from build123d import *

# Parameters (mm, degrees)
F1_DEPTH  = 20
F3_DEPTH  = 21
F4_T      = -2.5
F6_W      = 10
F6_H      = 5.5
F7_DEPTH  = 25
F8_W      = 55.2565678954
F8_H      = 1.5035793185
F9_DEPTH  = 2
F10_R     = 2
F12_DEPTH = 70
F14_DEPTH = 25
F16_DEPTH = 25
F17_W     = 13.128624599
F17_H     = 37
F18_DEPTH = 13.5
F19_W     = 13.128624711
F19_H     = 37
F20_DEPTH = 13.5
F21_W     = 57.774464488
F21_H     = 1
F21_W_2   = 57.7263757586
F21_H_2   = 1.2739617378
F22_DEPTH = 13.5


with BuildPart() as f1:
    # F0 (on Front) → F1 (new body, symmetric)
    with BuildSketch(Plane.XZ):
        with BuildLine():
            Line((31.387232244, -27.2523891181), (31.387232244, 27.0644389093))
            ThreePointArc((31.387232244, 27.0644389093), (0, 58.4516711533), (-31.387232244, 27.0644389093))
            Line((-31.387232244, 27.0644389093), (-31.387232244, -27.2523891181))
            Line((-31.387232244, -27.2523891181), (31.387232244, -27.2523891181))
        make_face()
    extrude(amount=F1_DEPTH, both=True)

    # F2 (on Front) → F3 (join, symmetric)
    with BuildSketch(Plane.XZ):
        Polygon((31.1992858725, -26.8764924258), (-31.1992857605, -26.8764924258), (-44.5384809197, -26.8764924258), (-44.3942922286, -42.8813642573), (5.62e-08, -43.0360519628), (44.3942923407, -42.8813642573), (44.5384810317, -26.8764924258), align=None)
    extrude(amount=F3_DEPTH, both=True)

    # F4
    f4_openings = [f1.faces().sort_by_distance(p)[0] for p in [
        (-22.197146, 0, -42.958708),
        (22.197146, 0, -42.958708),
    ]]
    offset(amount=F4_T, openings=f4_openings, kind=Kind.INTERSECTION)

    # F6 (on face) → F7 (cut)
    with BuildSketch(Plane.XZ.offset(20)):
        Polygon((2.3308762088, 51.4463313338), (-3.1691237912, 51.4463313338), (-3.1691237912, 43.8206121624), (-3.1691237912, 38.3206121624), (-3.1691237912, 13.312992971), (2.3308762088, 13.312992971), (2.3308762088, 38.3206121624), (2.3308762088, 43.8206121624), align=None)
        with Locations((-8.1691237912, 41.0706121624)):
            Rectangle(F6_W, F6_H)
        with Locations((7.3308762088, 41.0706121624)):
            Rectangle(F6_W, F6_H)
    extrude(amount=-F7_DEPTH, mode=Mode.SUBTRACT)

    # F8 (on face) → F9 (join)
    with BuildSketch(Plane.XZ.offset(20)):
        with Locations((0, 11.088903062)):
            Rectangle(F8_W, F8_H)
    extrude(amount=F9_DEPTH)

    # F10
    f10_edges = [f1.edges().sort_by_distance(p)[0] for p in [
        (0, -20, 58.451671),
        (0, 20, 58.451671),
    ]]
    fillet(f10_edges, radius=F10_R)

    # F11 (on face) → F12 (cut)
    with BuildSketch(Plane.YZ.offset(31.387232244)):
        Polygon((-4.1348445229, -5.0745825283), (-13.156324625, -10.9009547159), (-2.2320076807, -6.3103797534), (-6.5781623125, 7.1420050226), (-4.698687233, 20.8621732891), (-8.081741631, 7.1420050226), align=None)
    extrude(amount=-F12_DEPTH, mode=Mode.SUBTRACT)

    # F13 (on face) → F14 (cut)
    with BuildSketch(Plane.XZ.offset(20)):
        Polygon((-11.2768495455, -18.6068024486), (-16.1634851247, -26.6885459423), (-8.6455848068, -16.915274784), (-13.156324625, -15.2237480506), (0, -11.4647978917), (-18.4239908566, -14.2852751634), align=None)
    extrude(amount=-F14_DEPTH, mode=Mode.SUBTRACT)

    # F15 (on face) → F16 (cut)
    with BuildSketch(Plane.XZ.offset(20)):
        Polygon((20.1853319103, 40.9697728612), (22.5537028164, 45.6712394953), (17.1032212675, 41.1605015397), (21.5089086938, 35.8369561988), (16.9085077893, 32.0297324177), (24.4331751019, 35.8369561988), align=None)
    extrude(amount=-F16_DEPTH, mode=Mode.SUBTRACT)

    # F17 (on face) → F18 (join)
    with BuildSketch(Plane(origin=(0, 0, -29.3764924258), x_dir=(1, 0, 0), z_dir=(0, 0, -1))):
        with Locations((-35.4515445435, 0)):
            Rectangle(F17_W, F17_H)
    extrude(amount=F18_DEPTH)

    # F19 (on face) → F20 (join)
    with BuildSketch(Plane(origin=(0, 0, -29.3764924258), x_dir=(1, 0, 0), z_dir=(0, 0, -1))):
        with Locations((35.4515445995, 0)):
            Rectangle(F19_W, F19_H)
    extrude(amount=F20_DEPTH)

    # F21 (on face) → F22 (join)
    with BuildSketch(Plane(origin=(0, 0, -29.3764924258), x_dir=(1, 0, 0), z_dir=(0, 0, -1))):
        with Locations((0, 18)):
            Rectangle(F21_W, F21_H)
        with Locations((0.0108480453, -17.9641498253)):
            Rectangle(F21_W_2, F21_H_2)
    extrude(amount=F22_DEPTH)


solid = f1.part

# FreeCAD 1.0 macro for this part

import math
import FreeCAD as App
import Part
import Sketcher
from FreeCAD import Vector
Q = App.Units.Quantity


def edges_at(feature, points):
    """Names of the edges that pass closest to the given points."""
    edges = feature.Shape.Edges
    near = lambda p: min(range(len(edges)), key=lambda i: edges[i].distToShape(Part.Vertex(*p))[0])
    return sorted({f"Edge{near(p) + 1}" for p in points})


def faces_at(feature, points):
    """Names of the faces that lie closest to the given points."""
    faces = feature.Shape.Faces
    near = lambda p: min(range(len(faces)), key=lambda i: faces[i].distToShape(Part.Vertex(*p))[0])
    return sorted({f"Face{near(p) + 1}" for p in points})


def add_polygon(sketch, points):
    """Adds a closed chain of lines whose ends are joined by coincident constraints."""
    first, n = sketch.GeometryCount, len(points)
    for a, b in zip(points, points[1:] + points[:1]):
        sketch.addGeometry(Part.LineSegment(App.Vector(*a, 0), App.Vector(*b, 0)), False)
    for i in range(n):
        sketch.addConstraint(Sketcher.Constraint("Coincident", first + i, 2, first + (i + 1) % n, 1))

doc = App.newDocument("Part")
body = doc.addObject("PartDesign::Body", "Body")

# Sketch on XZ plane
sketch1 = body.newObject("Sketcher::SketchObject", "Sketch")
sketch1.AttachmentSupport = (doc.getObject("XZ_Plane"), [""])
sketch1.MapMode = "FlatFace"
sketch1.addGeometry([
    Part.LineSegment(Vector(31, -27, 0), Vector(31, 27, 0)),
    Part.ArcOfCircle(Part.Circle(Vector(0, 27, 0), Vector(0, 0, 1), 31), math.radians(0), math.radians(180)),
    Part.LineSegment(Vector(-31, 27, 0), Vector(-31, -27, 0)),
    Part.LineSegment(Vector(-31, -27, 0), Vector(31, -27, 0)),
], False)
sketch1.addConstraint([
    Sketcher.Constraint("Tangent", 0, 2, 1, 1),
    Sketcher.Constraint("Tangent", 1, 2, 2, 1),
    Sketcher.Constraint("Coincident", 2, 2, 3, 1),
    Sketcher.Constraint("Coincident", 3, 2, 0, 1),
    Sketcher.Constraint("Vertical", 0),
    Sketcher.Constraint("Vertical", 2),
    Sketcher.Constraint("Horizontal", 3),
    Sketcher.Constraint("PointOnObject", 1, 3, -2),
    Sketcher.Constraint("Radius", 1, Q("31.387232 mm")),
    Sketcher.Constraint("DistanceY", 0, 1, 0, 2, Q("54.316828 mm")),
    Sketcher.Constraint("DistanceY", -1, 1, 1, 3, Q("27.064439 mm")),
])
pad1 = body.newObject("PartDesign::Pad", "Pad")
pad1.Profile = sketch1
pad1.Length = 40
pad1.Midplane = True

# Sketch on XZ plane
sketch2 = body.newObject("Sketcher::SketchObject", "Sketch001")
sketch2.AttachmentSupport = (doc.getObject("XZ_Plane"), [""])
sketch2.MapMode = "FlatFace"
add_polygon(sketch2, [(-45, -27), (-44, -43), (0, -43), (44, -43), (45, -27)])  # lines 0-4
sketch2.addConstraint([
    Sketcher.Constraint("Horizontal", 4),
    Sketcher.Constraint("Symmetric", 0, 2, 2, 2, -2),
    Sketcher.Constraint("PointOnObject", 1, 2, -2),
    Sketcher.Constraint("Equal", 0, 3),
    Sketcher.Constraint("DistanceX", 4, 2, 4, 1, Q("89.076962 mm")),
    Sketcher.Constraint("Distance", 0, Q("16.005521 mm")),
    Sketcher.Constraint("Distance", 1, Q("44.394562 mm")),
    Sketcher.Constraint("DistanceY", 1, 2, -1, 1, Q("43.036052 mm")),
    Sketcher.Constraint("DistanceY", 1, 2, 3, 2, Q("16.15956 mm")),
])
pad2 = body.newObject("PartDesign::Pad", "Pad001")
pad2.Profile = sketch2
pad2.Length = 42
pad2.Midplane = True
doc.recompute()

thickness = body.newObject("PartDesign::Thickness", "Thickness")
thickness.Base = (pad2, faces_at(pad2, [(-22.197, 0, -42.959), (22.197, 0, -42.959)]))
thickness.Value = 2.5
thickness.Reversed = True
thickness.Join = "Intersection"

# Sketch on XZ plane
sketch3 = body.newObject("Sketcher::SketchObject", "Sketch002")
sketch3.AttachmentSupport = (doc.getObject("XZ_Plane"), [""])
sketch3.MapMode = "FlatFace"
sketch3.AttachmentOffset = App.Placement(Vector(0, 0, 20), App.Rotation())
add_polygon(sketch3, [(2, 51), (-3, 51), (-3, 44), (-13, 44), (-13, 38), (-3, 38), (-3, 13), (2, 13), (2, 38), (12, 38), (12, 44), (2, 44)])  # lines 0-11
sketch3.addConstraint([
    Sketcher.Constraint("Horizontal", 0),
    Sketcher.Constraint("Vertical", 1),
    Sketcher.Constraint("Horizontal", 2),
    Sketcher.Constraint("Vertical", 3),
    Sketcher.Constraint("Horizontal", 4),
    Sketcher.Constraint("Vertical", 5),
    Sketcher.Constraint("Horizontal", 6),
    Sketcher.Constraint("Vertical", 7),
    Sketcher.Constraint("Horizontal", 8),
    Sketcher.Constraint("Vertical", 9),
    Sketcher.Constraint("Horizontal", 10),
    Sketcher.Constraint("Vertical", 11),
    Sketcher.Constraint("Horizontal", 4, 2, 7, 2),
    Sketcher.Constraint("Horizontal", 2, 2, 9, 2),
    Sketcher.Constraint("Vertical", 1, 2, 4, 2),
    Sketcher.Constraint("Vertical", 7, 2, 10, 2),
    Sketcher.Constraint("Equal", 4, 8),
    Sketcher.Constraint("Equal", 6, 3),
    Sketcher.Constraint("DistanceX", 2, 2, 2, 1, Q("10 mm")),
    Sketcher.Constraint("DistanceX", 0, 2, 0, 1, Q("5.5 mm")),
    Sketcher.Constraint("DistanceY", 1, 2, 1, 1, Q("7.625719 mm")),
    Sketcher.Constraint("DistanceY", 5, 2, 5, 1, Q("25.007619 mm")),
    Sketcher.Constraint("DistanceY", -1, 1, 0, 2, Q("51.446331 mm")),
    Sketcher.Constraint("DistanceX", 0, 2, -1, 1, Q("3.169124 mm")),
])
pocket1 = body.newObject("PartDesign::Pocket", "Pocket")
pocket1.Profile = sketch3
pocket1.Length = 25

# Sketch on XZ plane
sketch4 = body.newObject("Sketcher::SketchObject", "Sketch003")
sketch4.AttachmentSupport = (doc.getObject("XZ_Plane"), [""])
sketch4.MapMode = "FlatFace"
sketch4.AttachmentOffset = App.Placement(Vector(0, 0, 20), App.Rotation())
add_polygon(sketch4, [(-27.6, 11.8), (-27.6, 10.3), (27.6, 10.3), (27.6, 11.8)])  # lines 0-3
sketch4.addConstraint([
    Sketcher.Constraint("Vertical", 0),
    Sketcher.Constraint("Horizontal", 1),
    Sketcher.Constraint("Vertical", 2),
    Sketcher.Constraint("Horizontal", 3),
    Sketcher.Constraint("DistanceY", 0, 2, 0, 1, Q("1.503579 mm")),
    Sketcher.Constraint("DistanceX", 1, 1, 1, 2, Q("55.256568 mm")),
    Sketcher.Constraint("DistanceX", 0, 2, -1, 1, Q("27.628284 mm")),
    Sketcher.Constraint("DistanceY", -1, 1, 0, 2, Q("10.337113 mm")),
])
pad3 = body.newObject("PartDesign::Pad", "Pad002")
pad3.Profile = sketch4
pad3.Length = 2
doc.recompute()

fillet = body.newObject("PartDesign::Fillet", "Fillet")
fillet.Base = (pad3, edges_at(pad3, [(0, -20, 58.452), (0, 20, 58.452)]))
fillet.Radius = 2

# Sketch on YZ plane
sketch5 = body.newObject("Sketcher::SketchObject", "Sketch004")
sketch5.AttachmentSupport = (doc.getObject("YZ_Plane"), [""])
sketch5.MapMode = "FlatFace"
sketch5.AttachmentOffset = App.Placement(Vector(0, 0, 31.387232), App.Rotation())
add_polygon(sketch5, [(-4, -5), (-13, -11), (-2, -6), (-7, 7), (-5, 21), (-8, 7)])  # lines 0-5
sketch5.addConstraint([
    Sketcher.Constraint("Parallel", 2, 5),
    Sketcher.Constraint("Horizontal", 2, 2, 4, 2),
    Sketcher.Constraint("Distance", 3, Q("13.848301 mm")),
    Sketcher.Constraint("Distance", 5, Q("12.838341 mm")),
    Sketcher.Constraint("DistanceY", 1, 2, -1, 1, Q("6.31038 mm")),
    Sketcher.Constraint("DistanceX", 4, 2, -1, 1, Q("8.081742 mm")),
    Sketcher.Constraint("DistanceY", 0, 2, 2, 2, Q("18.04296 mm")),
    Sketcher.Constraint("DistanceY", 2, 2, 3, 2, Q("13.720168 mm")),
    Sketcher.Constraint("DistanceX", 3, 2, 1, 2, Q("2.46668 mm")),
    Sketcher.Constraint("DistanceX", 4, 2, 2, 2, Q("1.503579 mm")),
    Sketcher.Constraint("DistanceX", 0, 2, 5, 2, Q("9.02148 mm")),
    Sketcher.Constraint("Distance", 0, Q("10.739354 mm")),
])
pocket2 = body.newObject("PartDesign::Pocket", "Pocket001")
pocket2.Profile = sketch5
pocket2.Length = 70

# Sketch on XZ plane
sketch6 = body.newObject("Sketcher::SketchObject", "Sketch005")
sketch6.AttachmentSupport = (doc.getObject("XZ_Plane"), [""])
sketch6.MapMode = "FlatFace"
sketch6.AttachmentOffset = App.Placement(Vector(0, 0, 20), App.Rotation())
add_polygon(sketch6, [(-11.3, -18.6), (-16.2, -26.7), (-8.6, -16.9), (-13.2, -15.2), (0, -11.5), (-18.4, -14.3)])  # lines 0-5
sketch6.addConstraint([
    Sketcher.Constraint("PointOnObject", 3, 2, -2),
    Sketcher.Constraint("Perpendicular", 0, 5),
    Sketcher.Constraint("DistanceY", 1, 2, 4, 2, Q("2.63 mm")),
    Sketcher.Constraint("DistanceX", 0, 2, 1, 2, Q("7.5179 mm")),
    Sketcher.Constraint("Distance", 2, Q("4.817472 mm")),
    Sketcher.Constraint("Distance", 4, Q("18.63863 mm")),
    Sketcher.Constraint("Distance", 5, Q("8.352079 mm")),
    Sketcher.Constraint("DistanceY", 2, 2, -1, 1, Q("15.223748 mm")),
    Sketcher.Constraint("DistanceX", 4, 2, -1, 1, Q("18.423991 mm")),
    Sketcher.Constraint("DistanceX", 5, 2, -1, 1, Q("11.27685 mm")),
    Sketcher.Constraint("DistanceY", 0, 2, 1, 2, Q("9.773271 mm")),
    Sketcher.Constraint("DistanceX", 2, 2, 1, 2, Q("4.51074 mm")),
])
pocket3 = body.newObject("PartDesign::Pocket", "Pocket002")
pocket3.Profile = sketch6
pocket3.Length = 25

# Sketch on XZ plane
sketch7 = body.newObject("Sketcher::SketchObject", "Sketch006")
sketch7.AttachmentSupport = (doc.getObject("XZ_Plane"), [""])
sketch7.MapMode = "FlatFace"
sketch7.AttachmentOffset = App.Placement(Vector(0, 0, 20), App.Rotation())
add_polygon(sketch7, [(20, 41), (23, 46), (17, 41), (22, 36), (17, 32), (24, 36)])  # lines 0-5
sketch7.addConstraint([
    Sketcher.Constraint("Perpendicular", 1, 2),
    Sketcher.Constraint("Perpendicular", 2, 3),
    Sketcher.Constraint("Perpendicular", 3, 5),
    Sketcher.Constraint("Horizontal", 2, 2, 4, 2),
    Sketcher.Constraint("DistanceY", -1, 1, 1, 2, Q("41.160502 mm")),
    Sketcher.Constraint("DistanceX", 3, 2, 2, 2, Q("4.600401 mm")),
    Sketcher.Constraint("Distance", 0, Q("5.264311 mm")),
    Sketcher.Constraint("Distance", 1, Q("7.074921 mm")),
    Sketcher.Constraint("Distance", 5, Q("6.66258 mm")),
    Sketcher.Constraint("DistanceY", -1, 1, 0, 2, Q("45.671239 mm")),
    Sketcher.Constraint("DistanceX", -1, 1, 1, 2, Q("17.103221 mm")),
    Sketcher.Constraint("DistanceX", -1, 1, 2, 2, Q("21.508909 mm")),
])
pocket4 = body.newObject("PartDesign::Pocket", "Pocket003")
pocket4.Profile = sketch7
pocket4.Length = 25

# Sketch on XY plane
sketch8 = body.newObject("Sketcher::SketchObject", "Sketch007")
sketch8.AttachmentSupport = (doc.getObject("XY_Plane"), [""])
sketch8.MapMode = "FlatFace"
sketch8.AttachmentOffset = App.Placement(Vector(0, 0, -29.376492), App.Rotation())
add_polygon(sketch8, [(-42, -18), (-42, 18), (-29, 18), (-29, -18)])  # lines 0-3
sketch8.addConstraint([
    Sketcher.Constraint("Vertical", 0),
    Sketcher.Constraint("Horizontal", 1),
    Sketcher.Constraint("Vertical", 2),
    Sketcher.Constraint("Horizontal", 3),
    Sketcher.Constraint("DistanceY", 0, 1, 0, 2, Q("37 mm")),
    Sketcher.Constraint("DistanceY", -1, 1, 0, 2, Q("18.5 mm")),
    Sketcher.Constraint("DistanceX", 1, 1, 1, 2, Q("13.128625 mm")),
    Sketcher.Constraint("DistanceX", 0, 2, -1, 1, Q("42.015857 mm")),
])
pad4 = body.newObject("PartDesign::Pad", "Pad003")
pad4.Profile = sketch8
pad4.Length = 13.5
pad4.Reversed = True

# Sketch on XY plane
sketch9 = body.newObject("Sketcher::SketchObject", "Sketch008")
sketch9.AttachmentSupport = (doc.getObject("XY_Plane"), [""])
sketch9.MapMode = "FlatFace"
sketch9.AttachmentOffset = App.Placement(Vector(0, 0, -29.376492), App.Rotation())
add_polygon(sketch9, [(29, -18), (29, 18), (42, 18), (42, -18)])  # lines 0-3
sketch9.addConstraint([
    Sketcher.Constraint("Vertical", 0),
    Sketcher.Constraint("Horizontal", 1),
    Sketcher.Constraint("Vertical", 2),
    Sketcher.Constraint("Horizontal", 3),
    Sketcher.Constraint("DistanceY", 0, 1, 0, 2, Q("37 mm")),
    Sketcher.Constraint("DistanceY", -1, 1, 0, 2, Q("18.5 mm")),
    Sketcher.Constraint("DistanceX", 1, 1, 1, 2, Q("13.128625 mm")),
    Sketcher.Constraint("DistanceX", -1, 1, 0, 2, Q("28.887232 mm")),
])
pad5 = body.newObject("PartDesign::Pad", "Pad004")
pad5.Profile = sketch9
pad5.Length = 13.5
pad5.Reversed = True

# Sketch on XY plane
sketch10 = body.newObject("Sketcher::SketchObject", "Sketch009")
sketch10.AttachmentSupport = (doc.getObject("XY_Plane"), [""])
sketch10.MapMode = "FlatFace"
sketch10.AttachmentOffset = App.Placement(Vector(0, 0, -29.376492), App.Rotation())
add_polygon(sketch10, [(-28.9, -18.5), (-28.9, -17.5), (28.9, -17.5), (28.9, -18.5)])  # lines 0-3
add_polygon(sketch10, [(-28.9, 17.3), (-28.9, 18.6), (28.9, 18.6), (28.9, 17.3)])  # lines 4-7
sketch10.addConstraint([
    Sketcher.Constraint("Vertical", 0),
    Sketcher.Constraint("Horizontal", 1),
    Sketcher.Constraint("Vertical", 2),
    Sketcher.Constraint("Horizontal", 3),
    Sketcher.Constraint("Vertical", 4),
    Sketcher.Constraint("Horizontal", 5),
    Sketcher.Constraint("Vertical", 6),
    Sketcher.Constraint("Horizontal", 7),
    Sketcher.Constraint("DistanceY", 0, 1, 0, 2, Q("1 mm")),
    Sketcher.Constraint("DistanceY", 0, 2, -1, 1, Q("17.5 mm")),
    Sketcher.Constraint("DistanceY", 4, 1, 4, 2, Q("1.273962 mm")),
    Sketcher.Constraint("DistanceX", 1, 1, 1, 2, Q("57.774464 mm")),
    Sketcher.Constraint("DistanceX", 5, 1, 5, 2, Q("57.726376 mm")),
    Sketcher.Constraint("DistanceX", 4, 2, -1, 1, Q("28.85234 mm")),
    Sketcher.Constraint("DistanceY", -1, 1, 4, 2, Q("18.601131 mm")),
    Sketcher.Constraint("DistanceX", 0, 2, 5, 2, Q("57.761268 mm")),
])
pad6 = body.newObject("PartDesign::Pad", "Pad005")
pad6.Profile = sketch10
pad6.Length = 13.5
pad6.Reversed = True

doc.recompute()
